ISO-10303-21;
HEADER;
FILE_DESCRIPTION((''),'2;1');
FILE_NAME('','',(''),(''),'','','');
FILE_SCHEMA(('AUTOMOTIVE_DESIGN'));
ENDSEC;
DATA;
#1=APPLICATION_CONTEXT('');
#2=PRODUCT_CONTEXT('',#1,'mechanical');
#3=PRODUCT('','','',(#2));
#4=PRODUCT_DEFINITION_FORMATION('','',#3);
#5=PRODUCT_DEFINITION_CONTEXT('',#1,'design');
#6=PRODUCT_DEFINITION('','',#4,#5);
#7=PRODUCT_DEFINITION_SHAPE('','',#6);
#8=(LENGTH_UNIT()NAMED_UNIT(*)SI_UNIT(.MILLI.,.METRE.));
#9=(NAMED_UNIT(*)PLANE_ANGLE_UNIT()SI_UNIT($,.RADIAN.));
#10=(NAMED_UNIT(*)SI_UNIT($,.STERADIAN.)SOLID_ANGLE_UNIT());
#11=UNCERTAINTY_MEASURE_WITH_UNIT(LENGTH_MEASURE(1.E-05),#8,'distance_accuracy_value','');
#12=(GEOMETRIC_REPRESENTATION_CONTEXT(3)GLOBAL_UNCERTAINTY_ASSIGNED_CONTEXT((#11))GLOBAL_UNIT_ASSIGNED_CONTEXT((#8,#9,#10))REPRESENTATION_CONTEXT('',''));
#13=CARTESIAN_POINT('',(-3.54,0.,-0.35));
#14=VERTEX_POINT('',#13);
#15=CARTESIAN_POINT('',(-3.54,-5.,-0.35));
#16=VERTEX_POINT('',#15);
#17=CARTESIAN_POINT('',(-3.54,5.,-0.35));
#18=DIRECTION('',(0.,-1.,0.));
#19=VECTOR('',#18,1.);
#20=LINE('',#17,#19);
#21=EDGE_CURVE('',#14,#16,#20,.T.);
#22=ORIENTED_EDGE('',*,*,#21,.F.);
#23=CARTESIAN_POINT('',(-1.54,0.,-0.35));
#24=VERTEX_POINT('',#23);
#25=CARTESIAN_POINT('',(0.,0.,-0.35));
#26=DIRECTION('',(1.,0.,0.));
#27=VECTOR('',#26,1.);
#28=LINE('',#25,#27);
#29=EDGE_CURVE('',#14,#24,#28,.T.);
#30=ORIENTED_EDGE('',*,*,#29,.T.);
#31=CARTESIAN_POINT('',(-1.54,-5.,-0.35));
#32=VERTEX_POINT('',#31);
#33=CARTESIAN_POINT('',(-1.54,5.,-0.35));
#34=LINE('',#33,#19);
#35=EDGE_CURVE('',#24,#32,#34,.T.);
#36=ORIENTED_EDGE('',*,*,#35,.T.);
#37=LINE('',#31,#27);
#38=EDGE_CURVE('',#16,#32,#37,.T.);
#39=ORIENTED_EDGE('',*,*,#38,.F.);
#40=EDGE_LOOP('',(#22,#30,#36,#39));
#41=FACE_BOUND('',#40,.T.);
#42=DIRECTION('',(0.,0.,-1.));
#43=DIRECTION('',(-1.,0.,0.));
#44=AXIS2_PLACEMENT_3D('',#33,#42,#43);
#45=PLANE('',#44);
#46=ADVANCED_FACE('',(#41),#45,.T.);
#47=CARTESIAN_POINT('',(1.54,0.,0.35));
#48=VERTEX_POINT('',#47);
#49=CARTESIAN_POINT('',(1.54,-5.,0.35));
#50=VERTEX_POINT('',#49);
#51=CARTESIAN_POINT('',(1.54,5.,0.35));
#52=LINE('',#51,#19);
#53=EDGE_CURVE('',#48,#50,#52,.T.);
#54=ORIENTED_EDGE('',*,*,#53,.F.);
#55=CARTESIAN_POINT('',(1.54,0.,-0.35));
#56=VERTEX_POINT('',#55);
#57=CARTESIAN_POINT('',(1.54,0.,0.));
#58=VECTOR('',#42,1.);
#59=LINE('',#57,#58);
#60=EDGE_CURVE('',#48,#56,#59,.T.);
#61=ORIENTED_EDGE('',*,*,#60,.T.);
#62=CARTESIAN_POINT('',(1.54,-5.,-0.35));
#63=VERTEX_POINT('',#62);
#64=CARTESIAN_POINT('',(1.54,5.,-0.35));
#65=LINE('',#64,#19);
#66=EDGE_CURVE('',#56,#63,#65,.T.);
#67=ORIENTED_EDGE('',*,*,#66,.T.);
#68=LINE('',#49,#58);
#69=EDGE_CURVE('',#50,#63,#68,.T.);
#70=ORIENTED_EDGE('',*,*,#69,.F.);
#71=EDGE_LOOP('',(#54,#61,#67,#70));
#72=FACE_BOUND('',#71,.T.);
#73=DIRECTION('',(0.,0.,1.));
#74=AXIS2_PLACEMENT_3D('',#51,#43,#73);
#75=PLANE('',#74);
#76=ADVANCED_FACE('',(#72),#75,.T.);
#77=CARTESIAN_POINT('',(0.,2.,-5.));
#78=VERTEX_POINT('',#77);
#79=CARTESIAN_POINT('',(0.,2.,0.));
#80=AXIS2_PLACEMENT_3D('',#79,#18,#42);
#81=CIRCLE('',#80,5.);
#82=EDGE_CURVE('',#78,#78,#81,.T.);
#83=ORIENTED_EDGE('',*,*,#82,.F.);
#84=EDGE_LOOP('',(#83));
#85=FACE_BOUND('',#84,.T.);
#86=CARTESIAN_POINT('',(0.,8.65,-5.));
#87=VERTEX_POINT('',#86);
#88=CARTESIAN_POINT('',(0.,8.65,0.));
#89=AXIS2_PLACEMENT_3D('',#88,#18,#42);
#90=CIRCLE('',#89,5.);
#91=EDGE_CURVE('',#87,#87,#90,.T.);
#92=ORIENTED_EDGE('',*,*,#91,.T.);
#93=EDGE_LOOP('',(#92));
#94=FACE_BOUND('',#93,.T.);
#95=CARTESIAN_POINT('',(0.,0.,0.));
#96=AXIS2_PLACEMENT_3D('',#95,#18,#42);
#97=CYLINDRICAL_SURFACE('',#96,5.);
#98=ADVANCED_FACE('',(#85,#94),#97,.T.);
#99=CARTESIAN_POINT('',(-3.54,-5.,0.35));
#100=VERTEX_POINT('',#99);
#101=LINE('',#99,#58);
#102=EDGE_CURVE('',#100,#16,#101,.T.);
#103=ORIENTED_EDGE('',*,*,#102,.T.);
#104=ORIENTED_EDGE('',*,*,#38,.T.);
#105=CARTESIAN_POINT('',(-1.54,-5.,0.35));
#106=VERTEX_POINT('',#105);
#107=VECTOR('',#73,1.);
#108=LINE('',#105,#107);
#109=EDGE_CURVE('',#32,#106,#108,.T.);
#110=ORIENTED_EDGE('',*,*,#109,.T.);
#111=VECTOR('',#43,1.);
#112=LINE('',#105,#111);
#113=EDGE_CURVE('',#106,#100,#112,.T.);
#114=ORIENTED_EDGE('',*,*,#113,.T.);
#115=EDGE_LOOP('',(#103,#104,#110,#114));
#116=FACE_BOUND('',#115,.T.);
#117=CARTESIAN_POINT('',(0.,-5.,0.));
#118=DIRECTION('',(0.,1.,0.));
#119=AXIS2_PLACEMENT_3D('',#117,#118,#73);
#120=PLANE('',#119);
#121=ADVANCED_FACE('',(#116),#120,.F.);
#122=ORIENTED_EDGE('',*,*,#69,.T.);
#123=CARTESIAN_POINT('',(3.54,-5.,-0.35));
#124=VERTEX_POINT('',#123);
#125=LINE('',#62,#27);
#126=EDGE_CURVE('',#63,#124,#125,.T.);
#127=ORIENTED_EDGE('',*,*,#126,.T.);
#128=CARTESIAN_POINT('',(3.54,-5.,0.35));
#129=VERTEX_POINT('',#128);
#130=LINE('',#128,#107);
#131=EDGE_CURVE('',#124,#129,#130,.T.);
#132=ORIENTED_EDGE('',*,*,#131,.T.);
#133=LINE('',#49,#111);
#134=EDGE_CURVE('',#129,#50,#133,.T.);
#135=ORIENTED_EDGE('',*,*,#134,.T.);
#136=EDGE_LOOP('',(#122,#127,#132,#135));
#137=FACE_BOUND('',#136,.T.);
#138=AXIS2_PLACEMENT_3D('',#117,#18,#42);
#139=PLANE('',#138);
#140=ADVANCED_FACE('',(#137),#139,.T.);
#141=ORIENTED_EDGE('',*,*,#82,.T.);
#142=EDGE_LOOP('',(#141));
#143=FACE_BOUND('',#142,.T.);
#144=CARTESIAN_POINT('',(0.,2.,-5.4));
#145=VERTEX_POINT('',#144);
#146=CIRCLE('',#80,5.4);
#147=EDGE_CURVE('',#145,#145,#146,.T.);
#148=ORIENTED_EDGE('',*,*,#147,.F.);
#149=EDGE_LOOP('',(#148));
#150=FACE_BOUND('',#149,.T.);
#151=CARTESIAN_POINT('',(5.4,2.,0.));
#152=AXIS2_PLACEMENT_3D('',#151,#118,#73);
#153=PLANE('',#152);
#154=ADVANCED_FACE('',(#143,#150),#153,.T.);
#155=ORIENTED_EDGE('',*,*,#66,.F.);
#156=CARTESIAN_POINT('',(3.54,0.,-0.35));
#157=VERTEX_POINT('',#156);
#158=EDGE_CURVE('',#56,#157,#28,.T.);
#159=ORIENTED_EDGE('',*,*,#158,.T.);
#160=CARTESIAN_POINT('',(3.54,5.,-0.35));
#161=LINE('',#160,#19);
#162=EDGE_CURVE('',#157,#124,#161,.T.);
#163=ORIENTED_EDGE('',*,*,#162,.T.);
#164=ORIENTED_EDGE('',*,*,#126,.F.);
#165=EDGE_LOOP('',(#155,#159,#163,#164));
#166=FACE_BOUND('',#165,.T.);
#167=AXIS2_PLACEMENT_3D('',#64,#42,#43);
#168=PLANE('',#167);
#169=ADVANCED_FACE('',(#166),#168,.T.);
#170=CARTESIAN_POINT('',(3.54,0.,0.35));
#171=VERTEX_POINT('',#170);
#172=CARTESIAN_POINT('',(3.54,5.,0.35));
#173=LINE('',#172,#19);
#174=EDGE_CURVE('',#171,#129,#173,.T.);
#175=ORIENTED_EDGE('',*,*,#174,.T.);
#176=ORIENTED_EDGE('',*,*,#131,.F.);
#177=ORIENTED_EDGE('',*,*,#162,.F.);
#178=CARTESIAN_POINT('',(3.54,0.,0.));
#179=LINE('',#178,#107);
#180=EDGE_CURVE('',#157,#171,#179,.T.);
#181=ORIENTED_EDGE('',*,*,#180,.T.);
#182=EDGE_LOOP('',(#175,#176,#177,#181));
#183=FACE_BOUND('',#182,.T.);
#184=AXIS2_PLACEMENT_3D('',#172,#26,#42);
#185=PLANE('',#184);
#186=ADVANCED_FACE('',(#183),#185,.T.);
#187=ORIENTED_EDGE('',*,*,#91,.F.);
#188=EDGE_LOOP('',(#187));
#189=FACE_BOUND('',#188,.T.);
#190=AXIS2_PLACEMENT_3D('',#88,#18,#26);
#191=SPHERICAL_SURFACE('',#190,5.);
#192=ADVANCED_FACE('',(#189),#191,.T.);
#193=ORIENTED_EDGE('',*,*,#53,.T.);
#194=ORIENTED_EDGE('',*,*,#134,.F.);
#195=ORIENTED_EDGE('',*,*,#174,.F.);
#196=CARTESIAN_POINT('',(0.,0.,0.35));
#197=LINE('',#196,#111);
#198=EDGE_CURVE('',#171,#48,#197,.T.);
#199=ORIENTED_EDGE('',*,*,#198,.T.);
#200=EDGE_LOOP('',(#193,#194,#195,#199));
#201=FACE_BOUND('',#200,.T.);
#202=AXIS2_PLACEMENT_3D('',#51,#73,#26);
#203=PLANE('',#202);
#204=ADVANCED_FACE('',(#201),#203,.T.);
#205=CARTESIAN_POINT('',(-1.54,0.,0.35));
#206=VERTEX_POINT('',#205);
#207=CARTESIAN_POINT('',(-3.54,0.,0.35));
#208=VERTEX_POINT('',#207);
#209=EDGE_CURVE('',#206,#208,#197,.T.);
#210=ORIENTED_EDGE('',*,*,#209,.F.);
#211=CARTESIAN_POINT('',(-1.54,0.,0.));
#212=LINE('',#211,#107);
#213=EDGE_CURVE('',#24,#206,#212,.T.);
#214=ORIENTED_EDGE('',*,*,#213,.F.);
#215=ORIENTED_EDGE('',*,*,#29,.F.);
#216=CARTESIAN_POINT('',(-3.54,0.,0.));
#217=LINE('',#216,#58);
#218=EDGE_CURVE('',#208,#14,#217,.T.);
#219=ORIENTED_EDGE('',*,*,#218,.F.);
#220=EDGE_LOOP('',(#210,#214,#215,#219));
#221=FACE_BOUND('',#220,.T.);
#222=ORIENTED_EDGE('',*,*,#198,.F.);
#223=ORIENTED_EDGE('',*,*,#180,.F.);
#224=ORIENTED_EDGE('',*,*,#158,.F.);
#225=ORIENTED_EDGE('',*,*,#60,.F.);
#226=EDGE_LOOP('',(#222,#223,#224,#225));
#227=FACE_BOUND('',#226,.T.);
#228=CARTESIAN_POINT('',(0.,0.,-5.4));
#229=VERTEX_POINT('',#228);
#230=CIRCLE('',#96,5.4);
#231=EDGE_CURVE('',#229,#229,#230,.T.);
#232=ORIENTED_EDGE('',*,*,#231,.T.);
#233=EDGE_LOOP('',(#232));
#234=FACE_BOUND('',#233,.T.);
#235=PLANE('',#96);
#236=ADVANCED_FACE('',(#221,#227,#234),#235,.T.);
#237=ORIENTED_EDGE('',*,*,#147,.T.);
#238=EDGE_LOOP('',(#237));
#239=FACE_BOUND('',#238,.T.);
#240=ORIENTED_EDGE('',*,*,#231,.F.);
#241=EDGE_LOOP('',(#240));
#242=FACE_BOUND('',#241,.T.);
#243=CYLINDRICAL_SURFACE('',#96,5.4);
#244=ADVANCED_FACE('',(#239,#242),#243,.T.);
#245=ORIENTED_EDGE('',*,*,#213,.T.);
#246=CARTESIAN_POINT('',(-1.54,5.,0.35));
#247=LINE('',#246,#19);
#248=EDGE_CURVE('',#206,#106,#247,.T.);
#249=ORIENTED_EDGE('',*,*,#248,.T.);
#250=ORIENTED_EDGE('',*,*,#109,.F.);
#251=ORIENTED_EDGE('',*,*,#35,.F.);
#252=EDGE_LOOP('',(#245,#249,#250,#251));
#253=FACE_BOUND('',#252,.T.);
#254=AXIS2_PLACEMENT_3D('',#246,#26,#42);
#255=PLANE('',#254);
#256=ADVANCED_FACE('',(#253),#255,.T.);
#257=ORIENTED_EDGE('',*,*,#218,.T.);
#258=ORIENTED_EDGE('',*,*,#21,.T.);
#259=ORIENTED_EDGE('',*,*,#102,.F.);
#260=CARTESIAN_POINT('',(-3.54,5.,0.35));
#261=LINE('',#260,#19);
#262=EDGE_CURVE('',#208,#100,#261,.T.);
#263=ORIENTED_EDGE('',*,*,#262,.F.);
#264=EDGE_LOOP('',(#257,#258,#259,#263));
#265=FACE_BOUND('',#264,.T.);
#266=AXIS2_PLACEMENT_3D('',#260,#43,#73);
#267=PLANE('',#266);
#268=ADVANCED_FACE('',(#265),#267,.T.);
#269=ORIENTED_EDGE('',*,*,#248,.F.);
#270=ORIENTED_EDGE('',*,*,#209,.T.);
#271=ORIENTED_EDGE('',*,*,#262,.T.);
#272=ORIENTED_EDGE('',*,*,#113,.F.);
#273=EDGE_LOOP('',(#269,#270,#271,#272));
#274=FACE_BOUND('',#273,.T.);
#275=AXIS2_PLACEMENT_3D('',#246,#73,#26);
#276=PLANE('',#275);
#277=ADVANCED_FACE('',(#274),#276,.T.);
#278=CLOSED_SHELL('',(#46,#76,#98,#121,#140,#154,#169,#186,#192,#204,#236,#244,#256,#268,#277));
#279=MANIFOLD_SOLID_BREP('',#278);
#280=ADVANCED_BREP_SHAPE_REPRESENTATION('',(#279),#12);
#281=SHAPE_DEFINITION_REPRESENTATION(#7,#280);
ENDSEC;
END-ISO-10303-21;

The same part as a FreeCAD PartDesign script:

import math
import FreeCAD as App
import Part
import Sketcher

V = App.Vector


def add_polygon(sketch, points):
    """Adds a closed chain of lines whose ends are joined by coincident constraints."""
    first, n = sketch.GeometryCount, len(points)
    for a, b in zip(points, points[1:] + points[:1]):
        sketch.addGeometry(Part.LineSegment(App.Vector(*a, 0), App.Vector(*b, 0)), False)
    for i in range(n):
        sketch.addConstraint(Sketcher.Constraint("Coincident", first + i, 2, first + (i + 1) % n, 1))

doc = App.newDocument("Part")
body = doc.addObject("PartDesign::Body", "Body")

# Sketch on XY plane
sketch1 = doc.addObject("Sketcher::SketchObject", "Sketch")
body.addObject(sketch1)
sketch1.AttachmentSupport = (doc.XY_Plane, [""])
sketch1.MapMode = "FlatFace"
sketch1.addGeometry([
    Part.LineSegment(V(0, 13.65, 0), V(0, 0, 0)),  # 0
    Part.LineSegment(V(0, 0, 0), V(5.4, 0, 0)),  # 1
    Part.LineSegment(V(5.4, 0, 0), V(5.4, 2, 0)),  # 2
    Part.LineSegment(V(5.4, 2, 0), V(5, 2, 0)),  # 3
    Part.LineSegment(V(5, 2, 0), V(5, 8.65, 0)),  # 4
    Part.ArcOfCircle(Part.Circle(V(0, 8.65, 0), V(0, 0, 1), 5), math.radians(0), math.radians(90)),  # 5
], False)
sketch1.addConstraint([
    Sketcher.Constraint("Coincident", 0, 2, 1, 1),
    Sketcher.Constraint("Coincident", 1, 2, 2, 1),
    Sketcher.Constraint("Coincident", 2, 2, 3, 1),
    Sketcher.Constraint("Coincident", 3, 2, 4, 1),
    Sketcher.Constraint("Tangent", 4, 2, 5, 1),
    Sketcher.Constraint("Coincident", 5, 2, 0, 1),
    Sketcher.Constraint("Vertical", 0),
    Sketcher.Constraint("Horizontal", 1),
    Sketcher.Constraint("Vertical", 2),
    Sketcher.Constraint("Horizontal", 3),
    Sketcher.Constraint("Vertical", 4),
    Sketcher.Constraint("Coincident", 0, 2, -1, 1),
    Sketcher.Constraint("PointOnObject", 5, 3, -2),
    Sketcher.Constraint("Radius", 5, 5.0),
    Sketcher.Constraint("DistanceY", 2, 1, 2, 2, 2.0),
    Sketcher.Constraint("DistanceX", 1, 1, 1, 2, 5.4),
    Sketcher.Constraint("DistanceY", 0, 2, 0, 1, 13.65),
])
revolution = doc.addObject("PartDesign::Revolution", "Revolution")
body.addObject(revolution)
revolution.Profile = sketch1
revolution.ReferenceAxis = (sketch1, ["V_Axis"])
revolution.Angle = 360

# Sketch on XZ plane
sketch2 = doc.addObject("Sketcher::SketchObject", "Sketch001")
body.addObject(sketch2)
sketch2.AttachmentSupport = (doc.XZ_Plane, [""])
sketch2.MapMode = "FlatFace"
add_polygon(sketch2, [(1.54, 0.35), (1.54, -0.35), (3.54, -0.35), (3.54, 0.35)])  # lines 0-3
add_polygon(sketch2, [(-3.54, 0.35), (-3.54, -0.35), (-1.54, -0.35), (-1.54, 0.35)])  # lines 4-7
sketch2.addConstraint([
    Sketcher.Constraint("Vertical", 0),
    Sketcher.Constraint("Horizontal", 1),
    Sketcher.Constraint("Vertical", 2),
    Sketcher.Constraint("Horizontal", 3),
    Sketcher.Constraint("Vertical", 4),
    Sketcher.Constraint("Horizontal", 5),
    Sketcher.Constraint("Vertical", 6),
    Sketcher.Constraint("Horizontal", 7),
    Sketcher.Constraint("Symmetric", 2, 2, 4, 2, -1, 1),
    Sketcher.Constraint("Symmetric", 0, 2, 6, 2, -1, 1),
    Sketcher.Constraint("Horizontal", 1, 2, 4, 2),
    Sketcher.Constraint("DistanceX", 1, 1, 1, 2, 2.0),
    Sketcher.Constraint("DistanceY", 0, 2, 0, 1, 0.7),
    Sketcher.Constraint("DistanceX", -1, 1, 0, 2, 1.54),
])
pad1 = doc.addObject("PartDesign::Pad", "Pad")
body.addObject(pad1)
pad1.Profile = sketch2
pad1.Type = "TwoLengths"
pad1.Length = 5
pad1.Length2 = 5

doc.recompute()
